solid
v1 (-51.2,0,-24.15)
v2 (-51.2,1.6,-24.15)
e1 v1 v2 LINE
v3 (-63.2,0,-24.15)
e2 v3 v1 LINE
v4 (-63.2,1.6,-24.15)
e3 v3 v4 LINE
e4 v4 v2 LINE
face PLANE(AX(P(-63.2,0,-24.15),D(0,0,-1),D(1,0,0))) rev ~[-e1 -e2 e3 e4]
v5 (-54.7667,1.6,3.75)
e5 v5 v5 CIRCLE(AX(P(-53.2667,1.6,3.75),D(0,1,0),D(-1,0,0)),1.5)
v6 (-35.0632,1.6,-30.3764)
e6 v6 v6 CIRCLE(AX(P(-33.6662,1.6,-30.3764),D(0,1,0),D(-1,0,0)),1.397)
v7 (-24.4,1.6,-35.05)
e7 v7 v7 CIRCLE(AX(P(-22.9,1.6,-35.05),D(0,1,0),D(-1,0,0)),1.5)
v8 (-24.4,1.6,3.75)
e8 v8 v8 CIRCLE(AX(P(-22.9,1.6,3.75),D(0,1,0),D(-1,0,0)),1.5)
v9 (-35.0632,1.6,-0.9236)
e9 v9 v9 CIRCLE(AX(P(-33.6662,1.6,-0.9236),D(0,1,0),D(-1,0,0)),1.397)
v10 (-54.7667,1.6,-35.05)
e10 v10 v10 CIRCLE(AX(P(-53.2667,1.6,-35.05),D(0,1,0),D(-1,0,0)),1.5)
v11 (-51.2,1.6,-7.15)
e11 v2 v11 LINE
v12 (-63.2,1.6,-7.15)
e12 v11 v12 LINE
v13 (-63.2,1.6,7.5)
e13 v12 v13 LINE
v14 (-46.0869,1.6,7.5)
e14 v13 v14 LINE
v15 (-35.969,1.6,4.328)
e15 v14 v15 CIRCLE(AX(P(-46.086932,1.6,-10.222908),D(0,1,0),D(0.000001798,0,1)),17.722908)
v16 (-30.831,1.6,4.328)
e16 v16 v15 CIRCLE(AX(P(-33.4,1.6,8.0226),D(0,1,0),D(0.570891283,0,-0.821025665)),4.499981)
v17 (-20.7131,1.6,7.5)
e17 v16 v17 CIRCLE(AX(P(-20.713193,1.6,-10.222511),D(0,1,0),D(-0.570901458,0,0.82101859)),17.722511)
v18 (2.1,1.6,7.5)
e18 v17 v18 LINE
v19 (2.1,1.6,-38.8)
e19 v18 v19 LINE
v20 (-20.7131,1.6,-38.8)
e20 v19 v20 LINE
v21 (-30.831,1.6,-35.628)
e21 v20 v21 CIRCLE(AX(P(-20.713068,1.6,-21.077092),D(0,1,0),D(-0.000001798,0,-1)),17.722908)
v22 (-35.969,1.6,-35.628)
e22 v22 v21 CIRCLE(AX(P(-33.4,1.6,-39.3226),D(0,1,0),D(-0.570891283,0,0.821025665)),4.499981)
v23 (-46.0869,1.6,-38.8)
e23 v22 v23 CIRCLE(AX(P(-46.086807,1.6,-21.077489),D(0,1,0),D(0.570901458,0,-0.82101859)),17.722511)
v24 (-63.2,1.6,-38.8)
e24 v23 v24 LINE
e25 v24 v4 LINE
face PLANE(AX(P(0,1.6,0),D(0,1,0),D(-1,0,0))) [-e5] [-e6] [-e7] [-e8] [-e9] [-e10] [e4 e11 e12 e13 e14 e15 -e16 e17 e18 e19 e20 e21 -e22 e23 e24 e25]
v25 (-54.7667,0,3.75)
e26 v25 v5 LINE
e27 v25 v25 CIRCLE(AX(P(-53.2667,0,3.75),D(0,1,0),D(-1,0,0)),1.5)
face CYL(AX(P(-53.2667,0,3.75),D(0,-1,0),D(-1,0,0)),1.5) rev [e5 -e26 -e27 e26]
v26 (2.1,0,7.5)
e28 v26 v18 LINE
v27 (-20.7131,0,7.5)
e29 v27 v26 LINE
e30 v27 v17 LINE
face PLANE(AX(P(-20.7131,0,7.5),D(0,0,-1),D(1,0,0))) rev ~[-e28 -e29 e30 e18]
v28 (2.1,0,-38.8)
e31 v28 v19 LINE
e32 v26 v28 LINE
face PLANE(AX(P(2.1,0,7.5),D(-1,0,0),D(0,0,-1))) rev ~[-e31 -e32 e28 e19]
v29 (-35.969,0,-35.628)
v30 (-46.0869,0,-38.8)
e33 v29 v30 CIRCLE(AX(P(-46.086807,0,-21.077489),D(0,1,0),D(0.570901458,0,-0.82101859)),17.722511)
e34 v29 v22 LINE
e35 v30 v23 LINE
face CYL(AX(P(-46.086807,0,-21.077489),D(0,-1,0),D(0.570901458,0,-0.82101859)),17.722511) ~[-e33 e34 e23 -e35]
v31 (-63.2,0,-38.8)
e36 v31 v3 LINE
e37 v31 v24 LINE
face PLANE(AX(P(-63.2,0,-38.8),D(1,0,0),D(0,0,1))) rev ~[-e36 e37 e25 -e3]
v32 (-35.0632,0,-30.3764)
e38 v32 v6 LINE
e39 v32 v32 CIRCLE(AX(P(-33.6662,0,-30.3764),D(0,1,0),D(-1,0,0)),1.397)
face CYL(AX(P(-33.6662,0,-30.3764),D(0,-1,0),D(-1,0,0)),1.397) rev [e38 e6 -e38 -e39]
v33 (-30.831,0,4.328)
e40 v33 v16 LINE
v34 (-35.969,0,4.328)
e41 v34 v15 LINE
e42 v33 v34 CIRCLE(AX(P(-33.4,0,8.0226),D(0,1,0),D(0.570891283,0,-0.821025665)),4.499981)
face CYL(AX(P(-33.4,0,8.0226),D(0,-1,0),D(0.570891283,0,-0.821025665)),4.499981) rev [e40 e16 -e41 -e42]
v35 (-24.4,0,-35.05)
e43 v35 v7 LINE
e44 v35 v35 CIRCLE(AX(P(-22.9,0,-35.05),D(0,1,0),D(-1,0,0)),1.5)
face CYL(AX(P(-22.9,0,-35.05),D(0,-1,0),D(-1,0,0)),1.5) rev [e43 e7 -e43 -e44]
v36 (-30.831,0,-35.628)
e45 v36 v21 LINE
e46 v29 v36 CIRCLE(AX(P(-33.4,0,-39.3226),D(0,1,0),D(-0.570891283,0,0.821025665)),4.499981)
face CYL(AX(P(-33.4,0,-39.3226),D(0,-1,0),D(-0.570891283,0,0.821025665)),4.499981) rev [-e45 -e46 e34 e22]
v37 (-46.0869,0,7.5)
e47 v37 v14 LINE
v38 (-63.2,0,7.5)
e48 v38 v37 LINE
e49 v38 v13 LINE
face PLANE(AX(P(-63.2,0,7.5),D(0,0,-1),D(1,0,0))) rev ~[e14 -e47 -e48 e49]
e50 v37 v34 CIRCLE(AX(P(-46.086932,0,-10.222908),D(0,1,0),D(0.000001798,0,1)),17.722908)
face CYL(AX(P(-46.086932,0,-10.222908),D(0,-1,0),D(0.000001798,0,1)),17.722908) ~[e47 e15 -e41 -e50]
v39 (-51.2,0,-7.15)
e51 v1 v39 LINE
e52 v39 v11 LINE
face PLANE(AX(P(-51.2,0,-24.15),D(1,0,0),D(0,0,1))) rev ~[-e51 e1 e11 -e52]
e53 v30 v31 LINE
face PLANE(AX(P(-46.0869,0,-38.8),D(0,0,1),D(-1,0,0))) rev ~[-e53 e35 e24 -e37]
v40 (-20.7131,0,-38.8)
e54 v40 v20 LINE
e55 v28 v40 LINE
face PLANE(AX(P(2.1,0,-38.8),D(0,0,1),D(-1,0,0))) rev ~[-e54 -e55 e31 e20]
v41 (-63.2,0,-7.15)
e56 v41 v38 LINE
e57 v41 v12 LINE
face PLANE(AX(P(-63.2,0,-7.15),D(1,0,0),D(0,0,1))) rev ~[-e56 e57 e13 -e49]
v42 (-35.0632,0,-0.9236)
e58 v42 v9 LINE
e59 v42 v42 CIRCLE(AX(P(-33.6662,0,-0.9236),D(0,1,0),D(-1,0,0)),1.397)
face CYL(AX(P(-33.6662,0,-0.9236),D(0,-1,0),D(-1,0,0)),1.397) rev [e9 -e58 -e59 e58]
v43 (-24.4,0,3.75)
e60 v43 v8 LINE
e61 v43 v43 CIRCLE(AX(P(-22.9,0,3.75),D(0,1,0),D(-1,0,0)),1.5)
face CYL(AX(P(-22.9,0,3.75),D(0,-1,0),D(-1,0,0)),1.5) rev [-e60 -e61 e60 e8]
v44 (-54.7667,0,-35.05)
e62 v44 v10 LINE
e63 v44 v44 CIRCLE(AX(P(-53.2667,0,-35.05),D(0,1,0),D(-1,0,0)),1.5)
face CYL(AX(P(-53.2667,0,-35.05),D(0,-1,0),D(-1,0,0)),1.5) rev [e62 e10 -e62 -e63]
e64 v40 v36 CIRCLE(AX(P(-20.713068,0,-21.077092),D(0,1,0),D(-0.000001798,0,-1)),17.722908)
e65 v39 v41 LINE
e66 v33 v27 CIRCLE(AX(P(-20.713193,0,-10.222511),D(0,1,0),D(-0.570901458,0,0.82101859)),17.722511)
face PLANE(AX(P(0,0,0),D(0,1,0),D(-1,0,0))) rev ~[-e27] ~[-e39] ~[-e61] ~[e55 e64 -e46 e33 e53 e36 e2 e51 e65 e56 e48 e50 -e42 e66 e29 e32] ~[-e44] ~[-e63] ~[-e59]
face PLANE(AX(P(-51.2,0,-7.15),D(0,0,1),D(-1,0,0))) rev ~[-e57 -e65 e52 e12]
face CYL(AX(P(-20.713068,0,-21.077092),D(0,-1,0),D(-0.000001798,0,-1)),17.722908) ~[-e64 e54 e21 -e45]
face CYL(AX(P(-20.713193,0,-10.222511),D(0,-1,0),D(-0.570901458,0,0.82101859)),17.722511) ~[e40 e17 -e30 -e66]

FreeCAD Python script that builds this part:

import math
import FreeCAD as App
import Part
import Sketcher

V = App.Vector

doc = App.newDocument("Part")
body = doc.addObject("PartDesign::Body", "Body")

sketch1 = doc.addObject("Sketcher::SketchObject", "Sketch")
body.addObject(sketch1)
sketch1.AttachmentSupport = (doc.XZ_Plane, [""])
sketch1.MapMode = "FlatFace"
sketch1.addGeometry(Part.LineSegment(V(-63.2, -7.2, 0), V(-63.2, 7.5, 0)), False)
sketch1.addGeometry(Part.LineSegment(V(-63.2, 7.5, 0), V(-46.1, 7.5, 0)), False)
sketch1.addGeometry(Part.ArcOfCircle(Part.Circle(V(-46.1, -10.2, 0), V(0, 0, 1), 17.7), math.radians(55), math.radians(90)), False)
sketch1.addGeometry(Part.ArcOfCircle(Part.Circle(V(-33.4, 8, 0), V(0, 0, 1), 4.5), math.radians(-125), math.radians(-55)), False)
sketch1.addGeometry(Part.ArcOfCircle(Part.Circle(V(-20.7, -10.2, 0), V(0, 0, 1), 17.7), math.radians(90), math.radians(125)), False)
sketch1.addGeometry(Part.LineSegment(V(-20.7, 7.5, 0), V(2.1, 7.5, 0)), False)
sketch1.addGeometry(Part.LineSegment(V(2.1, 7.5, 0), V(2.1, -38.8, 0)), False)
sketch1.addGeometry(Part.LineSegment(V(2.1, -38.8, 0), V(-20.7, -38.8, 0)), False)
sketch1.addGeometry(Part.ArcOfCircle(Part.Circle(V(-20.7, -21.1, 0), V(0, 0, 1), 17.7), math.radians(-125), math.radians(-90)), False)
sketch1.addGeometry(Part.ArcOfCircle(Part.Circle(V(-33.4, -39.3, 0), V(0, 0, 1), 4.5), math.radians(55), math.radians(125)), False)
sketch1.addGeometry(Part.ArcOfCircle(Part.Circle(V(-46.1, -21.1, 0), V(0, 0, 1), 17.7), math.radians(-90), math.radians(-55)), False)
sketch1.addGeometry(Part.LineSegment(V(-46.1, -38.8, 0), V(-63.2, -38.8, 0)), False)
sketch1.addGeometry(Part.LineSegment(V(-63.2, -38.8, 0), V(-63.2, -24.1, 0)), False)
sketch1.addGeometry(Part.LineSegment(V(-63.2, -24.1, 0), V(-51.2, -24.1, 0)), False)
sketch1.addGeometry(Part.LineSegment(V(-51.2, -24.1, 0), V(-51.2, -7.2, 0)), False)
sketch1.addGeometry(Part.LineSegment(V(-51.2, -7.2, 0), V(-63.2, -7.2, 0)), False)
sketch1.addGeometry(Part.Circle(V(-22.9, -35, 0), V(0, 0, 1), 1.5), False)
sketch1.addGeometry(Part.Circle(V(-53.3, -35, 0), V(0, 0, 1), 1.5), False)
sketch1.addGeometry(Part.Circle(V(-22.9, 3.8, 0), V(0, 0, 1), 1.5), False)
sketch1.addGeometry(Part.Circle(V(-53.3, 3.8, 0), V(0, 0, 1), 1.5), False)
sketch1.addGeometry(Part.Circle(V(-33.7, -30.4, 0), V(0, 0, 1), 1.4), False)
sketch1.addGeometry(Part.Circle(V(-33.7, -0.9, 0), V(0, 0, 1), 1.4), False)
sketch1.addConstraint(Sketcher.Constraint("Coincident", 0, 2, 1, 1))
sketch1.addConstraint(Sketcher.Constraint("Tangent", 1, 2, 2, 2))
sketch1.addConstraint(Sketcher.Constraint("Tangent", 2, 1, 3, 1))
sketch1.addConstraint(Sketcher.Constraint("Tangent", 3, 2, 4, 2))
sketch1.addConstraint(Sketcher.Constraint("Tangent", 4, 1, 5, 1))
sketch1.addConstraint(Sketcher.Constraint("Coincident", 5, 2, 6, 1))
sketch1.addConstraint(Sketcher.Constraint("Coincident", 6, 2, 7, 1))
sketch1.addConstraint(Sketcher.Constraint("Tangent", 7, 2, 8, 2))
sketch1.addConstraint(Sketcher.Constraint("Tangent", 8, 1, 9, 1))
sketch1.addConstraint(Sketcher.Constraint("Tangent", 9, 2, 10, 2))
sketch1.addConstraint(Sketcher.Constraint("Tangent", 10, 1, 11, 1))
sketch1.addConstraint(Sketcher.Constraint("Coincident", 11, 2, 12, 1))
sketch1.addConstraint(Sketcher.Constraint("Coincident", 12, 2, 13, 1))
sketch1.addConstraint(Sketcher.Constraint("Coincident", 13, 2, 14, 1))
sketch1.addConstraint(Sketcher.Constraint("Coincident", 14, 2, 15, 1))
sketch1.addConstraint(Sketcher.Constraint("Coincident", 15, 2, 0, 1))
sketch1.addConstraint(Sketcher.Constraint("Vertical", 0))
sketch1.addConstraint(Sketcher.Constraint("Horizontal", 1))
sketch1.addConstraint(Sketcher.Constraint("Horizontal", 5))
sketch1.addConstraint(Sketcher.Constraint("Vertical", 6))
sketch1.addConstraint(Sketcher.Constraint("Horizontal", 7))
sketch1.addConstraint(Sketcher.Constraint("Horizontal", 11))
sketch1.addConstraint(Sketcher.Constraint("Vertical", 12))
sketch1.addConstraint(Sketcher.Constraint("Horizontal", 13))
sketch1.addConstraint(Sketcher.Constraint("Vertical", 14))
sketch1.addConstraint(Sketcher.Constraint("Horizontal", 15))
sketch1.addConstraint(Sketcher.Constraint("Equal", 2, 4))
sketch1.addConstraint(Sketcher.Constraint("Equal", 4, 8))
sketch1.addConstraint(Sketcher.Constraint("Equal", 3, 9))
sketch1.addConstraint(Sketcher.Constraint("Equal", 8, 10))
sketch1.addConstraint(Sketcher.Constraint("Equal", 16, 17))
sketch1.addConstraint(Sketcher.Constraint("Equal", 17, 18))
sketch1.addConstraint(Sketcher.Constraint("Equal", 18, 19))
sketch1.addConstraint(Sketcher.Constraint("Equal", 20, 21))
sketch1.addConstraint(Sketcher.Constraint("Horizontal", 2, 3, 4, 3))
sketch1.addConstraint(Sketcher.Constraint("Horizontal", 8, 3, 10, 3))
sketch1.addConstraint(Sketcher.Constraint("Horizontal", 16, 3, 17, 3))
sketch1.addConstraint(Sketcher.Constraint("Horizontal", 18, 3, 19, 3))
sketch1.addConstraint(Sketcher.Constraint("Vertical", 4, 3, 8, 3))
sketch1.addConstraint(Sketcher.Constraint("Vertical", 3, 3, 9, 3))
sketch1.addConstraint(Sketcher.Constraint("Vertical", 16, 3, 18, 3))
sketch1.addConstraint(Sketcher.Constraint("Vertical", 17, 3, 19, 3))
sketch1.addConstraint(Sketcher.Constraint("Vertical", 20, 3, 21, 3))
sketch1.addConstraint(Sketcher.Constraint("Vertical", 0, 2, 11, 2))
sketch1.addConstraint(Sketcher.Constraint("Equal", 0, 12))
sketch1.addConstraint(Sketcher.Constraint("Diameter", 16, 3.0))
sketch1.addConstraint(Sketcher.Constraint("Radius", 3, 4.5))
sketch1.addConstraint(Sketcher.Constraint("DistanceX", 13, 1, 13, 2, 12.0))
sketch1.addConstraint(Sketcher.Constraint("DistanceY", 14, 1, 14, 2, 17.0))
sketch1.addConstraint(Sketcher.Constraint("Diameter", 20, 2.794))
sketch1.addConstraint(Sketcher.Constraint("DistanceY", 6, 2, 6, 1, 46.3))
sketch1.addConstraint(Sketcher.Constraint("DistanceX", 18, 3, 5, 2, 25.0))
sketch1.addConstraint(Sketcher.Constraint("DistanceX", 3, 3, -1, 1, 33.4))
sketch1.addConstraint(Sketcher.Constraint("DistanceX", 16, 3, -1, 1, 22.9))
sketch1.addConstraint(Sketcher.Constraint("DistanceX", 0, 2, -1, 1, 63.2))
sketch1.addConstraint(Sketcher.Constraint("DistanceY", -1, 1, 0, 2, 7.5))
sketch1.addConstraint(Sketcher.Constraint("Radius", 2, 17.7227))
sketch1.addConstraint(Sketcher.Constraint("DistanceY", 8, 3, 3, 3, 29.1))
sketch1.addConstraint(Sketcher.Constraint("DistanceY", 17, 3, 12, 2, 10.9))
sketch1.addConstraint(Sketcher.Constraint("DistanceY", 14, 2, 19, 3, 10.9))
sketch1.addConstraint(Sketcher.Constraint("DistanceY", 20, 3, 10, 3, 9.299))
sketch1.addConstraint(Sketcher.Constraint("DistanceX", 20, 3, 8, 3, 12.953))
sketch1.addConstraint(Sketcher.Constraint("DistanceY", 2, 3, 21, 3, 9.299))
sketch1.addConstraint(Sketcher.Constraint("DistanceX", 17, 3, -1, 1, 53.2667))
pad1 = doc.addObject("PartDesign::Pad", "Pad")
body.addObject(pad1)
pad1.Profile = sketch1
pad1.Length = 1.6
pad1.Reversed = True

doc.recompute()
